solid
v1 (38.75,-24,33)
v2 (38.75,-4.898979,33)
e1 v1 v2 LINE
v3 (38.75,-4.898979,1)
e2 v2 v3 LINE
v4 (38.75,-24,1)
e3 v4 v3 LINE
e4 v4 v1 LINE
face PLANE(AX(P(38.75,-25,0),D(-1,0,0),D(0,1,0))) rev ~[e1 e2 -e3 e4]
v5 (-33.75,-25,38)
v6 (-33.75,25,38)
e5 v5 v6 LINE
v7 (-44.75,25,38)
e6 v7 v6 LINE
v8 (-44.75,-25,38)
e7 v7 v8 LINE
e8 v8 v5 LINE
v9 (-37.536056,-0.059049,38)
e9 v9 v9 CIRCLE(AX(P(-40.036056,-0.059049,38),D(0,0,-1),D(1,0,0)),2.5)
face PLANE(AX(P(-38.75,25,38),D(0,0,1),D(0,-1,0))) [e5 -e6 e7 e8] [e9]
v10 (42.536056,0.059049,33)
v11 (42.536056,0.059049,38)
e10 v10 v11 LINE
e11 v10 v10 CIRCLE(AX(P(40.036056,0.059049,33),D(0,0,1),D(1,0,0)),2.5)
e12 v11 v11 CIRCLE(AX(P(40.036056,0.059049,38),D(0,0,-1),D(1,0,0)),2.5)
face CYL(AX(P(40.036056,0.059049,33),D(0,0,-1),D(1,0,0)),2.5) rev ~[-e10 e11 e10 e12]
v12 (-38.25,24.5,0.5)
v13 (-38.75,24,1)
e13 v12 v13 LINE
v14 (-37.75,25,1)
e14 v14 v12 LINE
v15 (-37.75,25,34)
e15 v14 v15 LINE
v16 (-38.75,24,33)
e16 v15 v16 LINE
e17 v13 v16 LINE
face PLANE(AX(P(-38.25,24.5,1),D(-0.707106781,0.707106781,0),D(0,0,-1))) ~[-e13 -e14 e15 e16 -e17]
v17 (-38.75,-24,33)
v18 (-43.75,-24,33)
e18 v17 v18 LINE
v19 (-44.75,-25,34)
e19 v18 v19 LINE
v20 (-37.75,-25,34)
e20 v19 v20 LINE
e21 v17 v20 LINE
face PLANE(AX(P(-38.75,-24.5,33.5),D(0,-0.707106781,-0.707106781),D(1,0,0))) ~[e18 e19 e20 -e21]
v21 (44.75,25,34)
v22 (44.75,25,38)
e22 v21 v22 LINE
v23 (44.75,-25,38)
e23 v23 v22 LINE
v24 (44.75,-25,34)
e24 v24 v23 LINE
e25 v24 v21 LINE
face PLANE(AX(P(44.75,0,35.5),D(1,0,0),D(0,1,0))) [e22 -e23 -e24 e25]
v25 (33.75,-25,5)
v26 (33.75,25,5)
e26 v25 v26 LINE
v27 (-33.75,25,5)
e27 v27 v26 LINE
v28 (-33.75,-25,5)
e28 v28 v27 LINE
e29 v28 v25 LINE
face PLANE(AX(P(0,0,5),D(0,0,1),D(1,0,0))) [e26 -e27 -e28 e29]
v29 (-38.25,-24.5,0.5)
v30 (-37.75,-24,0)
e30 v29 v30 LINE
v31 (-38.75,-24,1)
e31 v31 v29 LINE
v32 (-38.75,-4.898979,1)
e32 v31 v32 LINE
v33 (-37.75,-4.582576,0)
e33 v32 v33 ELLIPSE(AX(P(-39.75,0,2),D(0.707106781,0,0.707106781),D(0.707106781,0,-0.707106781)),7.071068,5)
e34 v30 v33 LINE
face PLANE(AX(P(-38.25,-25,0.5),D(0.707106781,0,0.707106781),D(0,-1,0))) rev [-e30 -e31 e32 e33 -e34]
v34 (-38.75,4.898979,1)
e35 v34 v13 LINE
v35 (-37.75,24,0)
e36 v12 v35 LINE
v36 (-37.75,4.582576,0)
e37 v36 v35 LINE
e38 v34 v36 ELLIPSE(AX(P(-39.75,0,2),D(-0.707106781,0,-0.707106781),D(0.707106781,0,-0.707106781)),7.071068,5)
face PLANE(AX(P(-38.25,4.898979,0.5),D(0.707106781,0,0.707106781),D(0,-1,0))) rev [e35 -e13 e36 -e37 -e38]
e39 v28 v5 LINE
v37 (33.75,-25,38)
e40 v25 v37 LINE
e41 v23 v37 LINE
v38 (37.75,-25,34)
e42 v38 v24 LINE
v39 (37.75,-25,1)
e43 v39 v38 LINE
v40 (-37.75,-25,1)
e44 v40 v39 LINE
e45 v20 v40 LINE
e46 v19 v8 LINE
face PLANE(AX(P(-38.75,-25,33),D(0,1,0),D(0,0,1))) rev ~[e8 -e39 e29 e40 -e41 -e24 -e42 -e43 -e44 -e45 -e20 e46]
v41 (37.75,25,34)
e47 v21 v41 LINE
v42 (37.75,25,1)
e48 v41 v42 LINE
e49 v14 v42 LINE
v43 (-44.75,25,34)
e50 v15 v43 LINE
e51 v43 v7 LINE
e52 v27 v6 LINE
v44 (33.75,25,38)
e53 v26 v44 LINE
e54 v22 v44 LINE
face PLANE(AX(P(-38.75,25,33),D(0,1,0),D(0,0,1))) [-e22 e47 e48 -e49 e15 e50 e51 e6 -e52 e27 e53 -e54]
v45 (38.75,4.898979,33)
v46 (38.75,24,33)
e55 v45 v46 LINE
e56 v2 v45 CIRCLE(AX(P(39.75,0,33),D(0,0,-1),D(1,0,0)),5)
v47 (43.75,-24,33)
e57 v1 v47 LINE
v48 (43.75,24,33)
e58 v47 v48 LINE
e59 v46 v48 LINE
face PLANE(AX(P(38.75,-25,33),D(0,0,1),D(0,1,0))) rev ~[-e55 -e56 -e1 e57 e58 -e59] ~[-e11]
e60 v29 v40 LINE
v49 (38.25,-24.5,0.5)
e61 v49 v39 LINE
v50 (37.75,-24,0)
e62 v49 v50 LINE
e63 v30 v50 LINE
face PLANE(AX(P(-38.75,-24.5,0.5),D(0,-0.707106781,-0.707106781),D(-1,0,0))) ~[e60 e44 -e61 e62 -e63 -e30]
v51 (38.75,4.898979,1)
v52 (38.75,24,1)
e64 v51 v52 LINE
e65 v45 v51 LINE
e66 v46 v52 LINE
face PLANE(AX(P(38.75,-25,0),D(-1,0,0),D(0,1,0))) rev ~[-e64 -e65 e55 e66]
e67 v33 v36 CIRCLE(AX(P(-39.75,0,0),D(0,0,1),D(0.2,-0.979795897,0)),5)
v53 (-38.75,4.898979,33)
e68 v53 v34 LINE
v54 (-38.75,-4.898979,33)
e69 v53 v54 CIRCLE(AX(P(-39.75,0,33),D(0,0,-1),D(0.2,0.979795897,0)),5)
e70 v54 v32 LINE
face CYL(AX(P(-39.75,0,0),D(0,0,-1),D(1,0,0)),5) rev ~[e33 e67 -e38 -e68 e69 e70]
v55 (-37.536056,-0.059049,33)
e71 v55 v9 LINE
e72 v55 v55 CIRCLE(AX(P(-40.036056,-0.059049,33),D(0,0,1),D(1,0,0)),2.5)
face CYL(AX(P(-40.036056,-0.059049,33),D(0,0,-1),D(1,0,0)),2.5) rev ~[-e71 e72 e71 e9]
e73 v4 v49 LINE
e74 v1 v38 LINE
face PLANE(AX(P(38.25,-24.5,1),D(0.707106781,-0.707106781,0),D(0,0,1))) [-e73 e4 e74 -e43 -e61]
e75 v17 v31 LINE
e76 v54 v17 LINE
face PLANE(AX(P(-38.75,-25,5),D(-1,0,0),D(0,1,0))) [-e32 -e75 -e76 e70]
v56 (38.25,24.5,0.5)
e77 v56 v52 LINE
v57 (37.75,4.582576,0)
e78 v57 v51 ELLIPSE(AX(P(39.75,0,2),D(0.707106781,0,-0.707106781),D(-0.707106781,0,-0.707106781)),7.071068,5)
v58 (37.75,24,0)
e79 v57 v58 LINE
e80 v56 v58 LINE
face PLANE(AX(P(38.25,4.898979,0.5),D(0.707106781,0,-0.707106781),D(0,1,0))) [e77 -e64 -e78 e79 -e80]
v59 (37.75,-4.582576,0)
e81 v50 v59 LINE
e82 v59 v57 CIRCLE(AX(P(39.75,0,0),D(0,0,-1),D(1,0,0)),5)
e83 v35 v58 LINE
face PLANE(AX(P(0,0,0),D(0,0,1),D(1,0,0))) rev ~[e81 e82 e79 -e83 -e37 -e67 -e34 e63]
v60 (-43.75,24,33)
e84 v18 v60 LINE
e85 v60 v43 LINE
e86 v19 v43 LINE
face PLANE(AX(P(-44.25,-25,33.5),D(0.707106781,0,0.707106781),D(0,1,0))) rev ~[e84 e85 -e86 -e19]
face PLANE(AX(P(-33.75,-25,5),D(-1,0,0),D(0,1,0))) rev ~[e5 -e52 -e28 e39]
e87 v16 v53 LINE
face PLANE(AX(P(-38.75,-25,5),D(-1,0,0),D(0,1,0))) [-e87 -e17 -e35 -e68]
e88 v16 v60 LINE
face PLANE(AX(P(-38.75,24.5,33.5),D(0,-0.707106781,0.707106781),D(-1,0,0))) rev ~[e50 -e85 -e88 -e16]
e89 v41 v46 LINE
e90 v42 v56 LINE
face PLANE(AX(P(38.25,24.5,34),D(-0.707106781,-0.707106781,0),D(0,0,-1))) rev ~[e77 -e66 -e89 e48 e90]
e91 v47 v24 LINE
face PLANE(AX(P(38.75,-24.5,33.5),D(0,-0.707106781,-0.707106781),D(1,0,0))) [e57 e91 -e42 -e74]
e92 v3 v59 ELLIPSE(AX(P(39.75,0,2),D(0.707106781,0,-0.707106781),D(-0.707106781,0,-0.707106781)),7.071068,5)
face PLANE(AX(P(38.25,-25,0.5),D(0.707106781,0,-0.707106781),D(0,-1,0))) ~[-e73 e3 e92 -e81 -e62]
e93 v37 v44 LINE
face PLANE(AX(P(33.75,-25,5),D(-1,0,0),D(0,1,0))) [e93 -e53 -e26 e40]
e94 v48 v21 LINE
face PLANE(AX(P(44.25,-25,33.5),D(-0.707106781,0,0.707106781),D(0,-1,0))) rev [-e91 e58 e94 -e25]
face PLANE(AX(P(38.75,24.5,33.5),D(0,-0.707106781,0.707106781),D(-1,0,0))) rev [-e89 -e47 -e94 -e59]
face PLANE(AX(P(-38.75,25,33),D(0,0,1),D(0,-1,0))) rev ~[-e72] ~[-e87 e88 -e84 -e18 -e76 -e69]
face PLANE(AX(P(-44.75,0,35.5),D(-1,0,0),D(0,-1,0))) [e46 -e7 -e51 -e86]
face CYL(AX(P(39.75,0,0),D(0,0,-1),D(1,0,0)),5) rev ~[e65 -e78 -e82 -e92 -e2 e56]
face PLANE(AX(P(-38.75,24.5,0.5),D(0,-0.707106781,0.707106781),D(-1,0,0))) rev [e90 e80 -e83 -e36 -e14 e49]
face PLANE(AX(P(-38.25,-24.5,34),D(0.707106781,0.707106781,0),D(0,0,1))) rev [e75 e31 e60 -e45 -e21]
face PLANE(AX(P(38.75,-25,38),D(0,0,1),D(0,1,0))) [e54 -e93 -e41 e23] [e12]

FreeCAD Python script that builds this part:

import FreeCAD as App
import Part
import Sketcher
Q = App.Units.Quantity


def edges_at(feature, points):
    """Names of the edges that pass closest to the given points."""
    edges = feature.Shape.Edges
    near = lambda p: min(range(len(edges)), key=lambda i: edges[i].distToShape(Part.Vertex(*p))[0])
    return sorted({f"Edge{near(p) + 1}" for p in points})

doc = App.newDocument("Part")
body = doc.addObject("PartDesign::Body", "Body")

# Sketch on XY plane
sketch1 = body.newObject("Sketcher::SketchObject", "Sketch")
sketch1.AttachmentSupport = (doc.getObject("XY_Plane"), [""])
sketch1.MapMode = "FlatFace"
sketch1.addGeometry(Part.LineSegment(App.Vector(-39, 25, 0), App.Vector(-39, -25, 0)), False)
sketch1.addGeometry(Part.LineSegment(App.Vector(-39, -25, 0), App.Vector(39, -25, 0)), False)
sketch1.addGeometry(Part.LineSegment(App.Vector(39, -25, 0), App.Vector(39, 25, 0)), False)
sketch1.addGeometry(Part.LineSegment(App.Vector(39, 25, 0), App.Vector(-39, 25, 0)), False)
sketch1.addConstraint(Sketcher.Constraint("Coincident", 0, 2, 1, 1))
sketch1.addConstraint(Sketcher.Constraint("Coincident", 1, 2, 2, 1))
sketch1.addConstraint(Sketcher.Constraint("Coincident", 2, 2, 3, 1))
sketch1.addConstraint(Sketcher.Constraint("Coincident", 3, 2, 0, 1))
sketch1.addConstraint(Sketcher.Constraint("Vertical", 0))
sketch1.addConstraint(Sketcher.Constraint("Horizontal", 1))
sketch1.addConstraint(Sketcher.Constraint("Vertical", 2))
sketch1.addConstraint(Sketcher.Constraint("Horizontal", 3))
sketch1.addConstraint(Sketcher.Constraint("Symmetric", 0, 2, 2, 2, -1, 1))
sketch1.addConstraint(Sketcher.Constraint("DistanceY", 0, 2, 0, 1, Q("50 mm")))
sketch1.addConstraint(Sketcher.Constraint("DistanceX", 1, 1, 1, 2, Q("77.5 mm")))
pad1 = body.newObject("PartDesign::Pad", "Pad")
pad1.Profile = sketch1
pad1.Length = 5

# Sketch on XY plane
sketch2 = body.newObject("Sketcher::SketchObject", "Sketch001")
sketch2.AttachmentSupport = (doc.getObject("XY_Plane"), [""])
sketch2.MapMode = "FlatFace"
sketch2.AttachmentOffset = App.Placement(App.Vector(0, 0, 5), App.Rotation())
sketch2.addGeometry(Part.LineSegment(App.Vector(-39, 25, 0), App.Vector(-39, -25, 0)), False)
sketch2.addGeometry(Part.LineSegment(App.Vector(-39, -25, 0), App.Vector(-34, -25, 0)), False)
sketch2.addGeometry(Part.LineSegment(App.Vector(-34, -25, 0), App.Vector(-34, 25, 0)), False)
sketch2.addGeometry(Part.LineSegment(App.Vector(-34, 25, 0), App.Vector(-39, 25, 0)), False)
sketch2.addGeometry(Part.LineSegment(App.Vector(34, 25, 0), App.Vector(34, -25, 0)), False)
sketch2.addGeometry(Part.LineSegment(App.Vector(34, -25, 0), App.Vector(39, -25, 0)), False)
sketch2.addGeometry(Part.LineSegment(App.Vector(39, -25, 0), App.Vector(39, 25, 0)), False)
sketch2.addGeometry(Part.LineSegment(App.Vector(39, 25, 0), App.Vector(34, 25, 0)), False)
sketch2.addConstraint(Sketcher.Constraint("Coincident", 0, 2, 1, 1))
sketch2.addConstraint(Sketcher.Constraint("Coincident", 1, 2, 2, 1))
sketch2.addConstraint(Sketcher.Constraint("Coincident", 2, 2, 3, 1))
sketch2.addConstraint(Sketcher.Constraint("Coincident", 3, 2, 0, 1))
sketch2.addConstraint(Sketcher.Constraint("Coincident", 4, 2, 5, 1))
sketch2.addConstraint(Sketcher.Constraint("Coincident", 5, 2, 6, 1))
sketch2.addConstraint(Sketcher.Constraint("Coincident", 6, 2, 7, 1))
sketch2.addConstraint(Sketcher.Constraint("Coincident", 7, 2, 4, 1))
sketch2.addConstraint(Sketcher.Constraint("Vertical", 0))
sketch2.addConstraint(Sketcher.Constraint("Horizontal", 1))
sketch2.addConstraint(Sketcher.Constraint("Vertical", 2))
sketch2.addConstraint(Sketcher.Constraint("Horizontal", 3))
sketch2.addConstraint(Sketcher.Constraint("Vertical", 4))
sketch2.addConstraint(Sketcher.Constraint("Horizontal", 5))
sketch2.addConstraint(Sketcher.Constraint("Vertical", 6))
sketch2.addConstraint(Sketcher.Constraint("Horizontal", 7))
sketch2.addConstraint(Sketcher.Constraint("Symmetric", 2, 2, 4, 2, -1, 1))
sketch2.addConstraint(Sketcher.Constraint("Symmetric", 0, 2, 6, 2, -1, 1))
sketch2.addConstraint(Sketcher.Constraint("Horizontal", 1, 2, 4, 2))
sketch2.addConstraint(Sketcher.Constraint("DistanceX", 1, 1, 1, 2, Q("5 mm")))
sketch2.addConstraint(Sketcher.Constraint("DistanceY", 0, 2, 0, 1, Q("50 mm")))
sketch2.addConstraint(Sketcher.Constraint("DistanceX", 1, 2, 4, 2, Q("67.5 mm")))
pad2 = body.newObject("PartDesign::Pad", "Pad001")
pad2.Profile = sketch2
pad2.Length = 33

# Sketch on YZ plane
sketch3 = body.newObject("Sketcher::SketchObject", "Sketch002")
sketch3.AttachmentSupport = (doc.getObject("YZ_Plane"), [""])
sketch3.MapMode = "FlatFace"
sketch3.AttachmentOffset = App.Placement(App.Vector(0, 0, 38.75), App.Rotation())
sketch3.addGeometry(Part.LineSegment(App.Vector(-25, 38, 0), App.Vector(-25, 33, 0)), False)
sketch3.addGeometry(Part.LineSegment(App.Vector(-25, 33, 0), App.Vector(25, 33, 0)), False)
sketch3.addGeometry(Part.LineSegment(App.Vector(25, 33, 0), App.Vector(25, 38, 0)), False)
sketch3.addGeometry(Part.LineSegment(App.Vector(25, 38, 0), App.Vector(-25, 38, 0)), False)
sketch3.addConstraint(Sketcher.Constraint("Coincident", 0, 2, 1, 1))
sketch3.addConstraint(Sketcher.Constraint("Coincident", 1, 2, 2, 1))
sketch3.addConstraint(Sketcher.Constraint("Coincident", 2, 2, 3, 1))
sketch3.addConstraint(Sketcher.Constraint("Coincident", 3, 2, 0, 1))
sketch3.addConstraint(Sketcher.Constraint("Vertical", 0))
sketch3.addConstraint(Sketcher.Constraint("Horizontal", 1))
sketch3.addConstraint(Sketcher.Constraint("Vertical", 2))
sketch3.addConstraint(Sketcher.Constraint("Horizontal", 3))
sketch3.addConstraint(Sketcher.Constraint("DistanceX", 1, 1, 1, 2, Q("50 mm")))
sketch3.addConstraint(Sketcher.Constraint("DistanceY", 0, 2, 0, 1, Q("5 mm")))
sketch3.addConstraint(Sketcher.Constraint("DistanceX", 0, 2, -1, 1, Q("25 mm")))
sketch3.addConstraint(Sketcher.Constraint("DistanceY", -1, 1, 0, 2, Q("33 mm")))
pad3 = body.newObject("PartDesign::Pad", "Pad002")
pad3.Profile = sketch3
pad3.Length = 6

# Sketch on YZ plane
sketch4 = body.newObject("Sketcher::SketchObject", "Sketch003")
sketch4.AttachmentSupport = (doc.getObject("YZ_Plane"), [""])
sketch4.MapMode = "FlatFace"
sketch4.AttachmentOffset = App.Placement(App.Vector(0, 0, -38.75), App.Rotation())
sketch4.addGeometry(Part.LineSegment(App.Vector(25, 38, 0), App.Vector(25, 33, 0)), False)
sketch4.addGeometry(Part.LineSegment(App.Vector(25, 33, 0), App.Vector(-25, 33, 0)), False)
sketch4.addGeometry(Part.LineSegment(App.Vector(-25, 33, 0), App.Vector(-25, 38, 0)), False)
sketch4.addGeometry(Part.LineSegment(App.Vector(-25, 38, 0), App.Vector(25, 38, 0)), False)
sketch4.addConstraint(Sketcher.Constraint("Coincident", 0, 2, 1, 1))
sketch4.addConstraint(Sketcher.Constraint("Coincident", 1, 2, 2, 1))
sketch4.addConstraint(Sketcher.Constraint("Coincident", 2, 2, 3, 1))
sketch4.addConstraint(Sketcher.Constraint("Coincident", 3, 2, 0, 1))
sketch4.addConstraint(Sketcher.Constraint("Vertical", 0))
sketch4.addConstraint(Sketcher.Constraint("Horizontal", 1))
sketch4.addConstraint(Sketcher.Constraint("Vertical", 2))
sketch4.addConstraint(Sketcher.Constraint("Horizontal", 3))
sketch4.addConstraint(Sketcher.Constraint("DistanceX", 1, 2, 1, 1, Q("50 mm")))
sketch4.addConstraint(Sketcher.Constraint("DistanceY", 0, 2, 0, 1, Q("5 mm")))
sketch4.addConstraint(Sketcher.Constraint("DistanceX", -1, 1, 0, 2, Q("25 mm")))
sketch4.addConstraint(Sketcher.Constraint("DistanceY", -1, 1, 0, 2, Q("33 mm")))
pad4 = body.newObject("PartDesign::Pad", "Pad003")
pad4.Profile = sketch4
pad4.Length = 6
pad4.Reversed = True

# Sketch on XY plane
sketch5 = body.newObject("Sketcher::SketchObject", "Sketch004")
sketch5.AttachmentSupport = (doc.getObject("XY_Plane"), [""])
sketch5.MapMode = "FlatFace"
sketch5.AttachmentOffset = App.Placement(App.Vector(0, 0, 33), App.Rotation())
sketch5.addGeometry(Part.Circle(App.Vector(40, 0.1, 0), App.Vector(0, 0, 1), 2.5), False)
sketch5.addGeometry(Part.Circle(App.Vector(-40, -0.1, 0), App.Vector(0, 0, 1), 2.5), False)
sketch5.addConstraint(Sketcher.Constraint("Equal", 0, 1))
sketch5.addConstraint(Sketcher.Constraint("Symmetric", 0, 3, 1, 3, -1, 1))
sketch5.addConstraint(Sketcher.Constraint("Diameter", 0, Q("5 mm")))
sketch5.addConstraint(Sketcher.Constraint("DistanceY", -1, 1, 0, 3, Q("0.059049 mm")))
sketch5.addConstraint(Sketcher.Constraint("DistanceX", -1, 1, 0, 3, Q("40.036056 mm")))
pocket1 = body.newObject("PartDesign::Pocket", "Pocket")
pocket1.Profile = sketch5
pocket1.Type = "ThroughAll"
pocket1.Reversed = True

# Sketch on XY plane
sketch6 = body.newObject("Sketcher::SketchObject", "Sketch005")
sketch6.AttachmentSupport = (doc.getObject("XY_Plane"), [""])
sketch6.MapMode = "FlatFace"
sketch6.addGeometry(Part.Circle(App.Vector(40, 0, 0), App.Vector(0, 0, 1), 5), False)
sketch6.addGeometry(Part.Circle(App.Vector(-40, 0, 0), App.Vector(0, 0, 1), 5), False)
sketch6.addConstraint(Sketcher.Constraint("Equal", 0, 1))
sketch6.addConstraint(Sketcher.Constraint("Symmetric", 0, 3, 1, 3, -1, 1))
sketch6.addConstraint(Sketcher.Constraint("PointOnObject", 0, 3, -1))
sketch6.addConstraint(Sketcher.Constraint("Diameter", 0, Q("10 mm")))
sketch6.addConstraint(Sketcher.Constraint("DistanceX", 1, 3, 0, 3, Q("79.5 mm")))
pocket2 = body.newObject("PartDesign::Pocket", "Pocket001")
pocket2.Profile = sketch6
pocket2.Length = 33
pocket2.Reversed = True
doc.recompute()

chamfer = body.newObject("PartDesign::Chamfer", "Chamfer")
chamfer.Base = (pocket2, edges_at(pocket2, [
    (0, 25, 0),
    (0, -25, 0),
    (-38.75, 14.949, 0),
    (-38.75, -14.949, 0),
    (38.75, -14.949, 0),
    (38.75, 14.949, 0),
]))
chamfer.Size = 1
doc.recompute()

chamfer2 = body.newObject("PartDesign::Chamfer", "Chamfer001")
chamfer2.Base = (chamfer, edges_at(chamfer, [
    (-44.75, 0, 33),
    (-44.75, 0, 33),
    (44.75, 0, 33),
    (44.75, 0, 33),
    (-41.75, -25, 33),
    (-41.75, 25, 33),
    (41.75, 25, 33),
    (41.75, -25, 33),
]))
chamfer2.Size = 1
doc.recompute()

chamfer3 = body.newObject("PartDesign::Chamfer", "Chamfer002")
chamfer3.Base = (chamfer2, edges_at(chamfer2, [
    (-38.75, 25, 17.5),
    (-38.75, -25, 17.5),
    (38.75, 25, 17.5),
    (38.75, -25, 17.5),
]))
chamfer3.Size = 1

doc.recompute()
